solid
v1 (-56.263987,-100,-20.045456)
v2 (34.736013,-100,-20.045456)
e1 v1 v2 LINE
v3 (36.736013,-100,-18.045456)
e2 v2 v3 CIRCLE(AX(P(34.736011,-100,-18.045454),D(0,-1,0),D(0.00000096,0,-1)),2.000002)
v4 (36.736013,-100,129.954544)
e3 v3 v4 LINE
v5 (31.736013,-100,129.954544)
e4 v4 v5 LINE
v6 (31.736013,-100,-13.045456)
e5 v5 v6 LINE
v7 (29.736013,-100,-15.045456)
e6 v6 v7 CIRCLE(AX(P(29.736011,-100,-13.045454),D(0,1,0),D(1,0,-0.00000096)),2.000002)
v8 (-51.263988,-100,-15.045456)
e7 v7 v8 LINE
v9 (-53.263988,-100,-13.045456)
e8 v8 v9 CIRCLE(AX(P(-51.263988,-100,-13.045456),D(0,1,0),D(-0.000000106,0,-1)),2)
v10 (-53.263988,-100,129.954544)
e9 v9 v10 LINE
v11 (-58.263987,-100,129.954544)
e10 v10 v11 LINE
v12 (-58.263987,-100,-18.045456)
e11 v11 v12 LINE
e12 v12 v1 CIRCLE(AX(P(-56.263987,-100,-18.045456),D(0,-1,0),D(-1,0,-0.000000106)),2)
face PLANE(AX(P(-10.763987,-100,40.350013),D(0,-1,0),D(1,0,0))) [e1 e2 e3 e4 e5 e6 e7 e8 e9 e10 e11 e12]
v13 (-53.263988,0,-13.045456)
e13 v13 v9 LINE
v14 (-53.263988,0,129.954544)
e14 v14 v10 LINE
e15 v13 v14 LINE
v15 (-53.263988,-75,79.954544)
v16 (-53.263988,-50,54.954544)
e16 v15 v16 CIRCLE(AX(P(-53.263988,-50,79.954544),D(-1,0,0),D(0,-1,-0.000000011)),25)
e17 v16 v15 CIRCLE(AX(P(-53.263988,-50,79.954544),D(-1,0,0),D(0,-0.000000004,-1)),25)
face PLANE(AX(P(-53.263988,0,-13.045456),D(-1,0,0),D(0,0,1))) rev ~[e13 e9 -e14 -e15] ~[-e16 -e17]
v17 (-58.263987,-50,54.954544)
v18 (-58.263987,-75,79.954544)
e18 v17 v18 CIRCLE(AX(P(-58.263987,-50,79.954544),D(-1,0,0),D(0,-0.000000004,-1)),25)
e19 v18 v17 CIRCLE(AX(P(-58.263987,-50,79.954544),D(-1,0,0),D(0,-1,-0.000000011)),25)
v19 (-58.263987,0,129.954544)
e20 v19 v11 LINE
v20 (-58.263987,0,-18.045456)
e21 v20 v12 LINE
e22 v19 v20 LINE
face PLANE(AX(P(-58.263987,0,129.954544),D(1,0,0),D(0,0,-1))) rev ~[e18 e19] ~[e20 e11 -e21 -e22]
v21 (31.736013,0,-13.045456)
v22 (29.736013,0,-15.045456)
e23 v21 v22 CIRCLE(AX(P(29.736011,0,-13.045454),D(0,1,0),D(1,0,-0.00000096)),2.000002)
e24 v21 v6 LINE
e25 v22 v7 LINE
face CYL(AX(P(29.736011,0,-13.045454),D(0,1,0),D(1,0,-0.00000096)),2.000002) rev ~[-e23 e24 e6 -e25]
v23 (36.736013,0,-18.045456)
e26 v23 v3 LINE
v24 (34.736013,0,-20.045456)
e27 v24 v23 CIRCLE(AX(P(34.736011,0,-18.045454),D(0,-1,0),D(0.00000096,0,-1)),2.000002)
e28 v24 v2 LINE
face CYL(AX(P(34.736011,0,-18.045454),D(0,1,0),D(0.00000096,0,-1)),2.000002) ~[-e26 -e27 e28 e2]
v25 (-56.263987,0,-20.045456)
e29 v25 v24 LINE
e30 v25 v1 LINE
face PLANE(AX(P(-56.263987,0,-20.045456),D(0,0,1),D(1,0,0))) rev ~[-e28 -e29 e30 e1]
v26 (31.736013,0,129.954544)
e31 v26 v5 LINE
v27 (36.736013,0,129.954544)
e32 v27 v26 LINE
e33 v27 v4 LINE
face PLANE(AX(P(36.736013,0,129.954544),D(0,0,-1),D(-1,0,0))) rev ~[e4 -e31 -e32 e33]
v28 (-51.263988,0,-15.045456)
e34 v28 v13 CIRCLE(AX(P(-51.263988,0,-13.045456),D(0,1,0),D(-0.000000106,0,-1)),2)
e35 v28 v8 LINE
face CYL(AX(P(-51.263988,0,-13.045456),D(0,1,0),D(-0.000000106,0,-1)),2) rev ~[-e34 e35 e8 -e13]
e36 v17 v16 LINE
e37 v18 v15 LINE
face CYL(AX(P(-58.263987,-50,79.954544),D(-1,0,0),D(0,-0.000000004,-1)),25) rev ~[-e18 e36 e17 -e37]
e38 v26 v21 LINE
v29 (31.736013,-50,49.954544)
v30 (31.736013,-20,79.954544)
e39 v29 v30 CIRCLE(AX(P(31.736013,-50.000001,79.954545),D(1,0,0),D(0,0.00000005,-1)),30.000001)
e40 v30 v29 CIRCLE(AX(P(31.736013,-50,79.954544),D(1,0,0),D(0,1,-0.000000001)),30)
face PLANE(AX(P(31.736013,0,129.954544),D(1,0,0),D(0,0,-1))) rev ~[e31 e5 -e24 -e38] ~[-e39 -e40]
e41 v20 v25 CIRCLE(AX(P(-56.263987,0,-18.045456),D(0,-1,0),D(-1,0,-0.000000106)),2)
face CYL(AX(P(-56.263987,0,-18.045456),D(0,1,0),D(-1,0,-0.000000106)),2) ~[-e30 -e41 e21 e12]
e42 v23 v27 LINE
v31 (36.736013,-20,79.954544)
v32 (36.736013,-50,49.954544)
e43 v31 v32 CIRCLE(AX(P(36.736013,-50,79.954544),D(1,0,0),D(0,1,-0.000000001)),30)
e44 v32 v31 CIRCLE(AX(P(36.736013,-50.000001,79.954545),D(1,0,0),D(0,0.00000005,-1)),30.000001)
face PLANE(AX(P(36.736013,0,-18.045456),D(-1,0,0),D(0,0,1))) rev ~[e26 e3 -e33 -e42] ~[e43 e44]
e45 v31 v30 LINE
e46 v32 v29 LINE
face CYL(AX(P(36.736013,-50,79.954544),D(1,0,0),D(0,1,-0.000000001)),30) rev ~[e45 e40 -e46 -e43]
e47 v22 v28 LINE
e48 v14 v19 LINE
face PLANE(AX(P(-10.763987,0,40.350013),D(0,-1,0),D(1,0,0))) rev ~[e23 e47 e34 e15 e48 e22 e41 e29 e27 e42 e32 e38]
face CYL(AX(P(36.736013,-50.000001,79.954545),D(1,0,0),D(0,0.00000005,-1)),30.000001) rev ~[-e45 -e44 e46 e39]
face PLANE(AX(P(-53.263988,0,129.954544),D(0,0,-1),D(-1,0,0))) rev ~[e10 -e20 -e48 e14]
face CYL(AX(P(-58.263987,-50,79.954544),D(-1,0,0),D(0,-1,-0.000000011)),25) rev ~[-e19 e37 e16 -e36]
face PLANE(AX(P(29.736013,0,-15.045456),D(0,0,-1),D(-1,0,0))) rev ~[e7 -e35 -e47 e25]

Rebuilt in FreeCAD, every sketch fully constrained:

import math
import FreeCAD as App
import Part
import Sketcher

V = App.Vector

doc = App.newDocument("Part")
body = doc.addObject("PartDesign::Body", "Body")

sketch1 = body.newObject("Sketcher::SketchObject", "Sketch")
sketch1.AttachmentSupport = (doc.getObject("XZ_Plane"), [""])
sketch1.MapMode = "FlatFace"
sketch1.addGeometry([
    Part.LineSegment(V(-53.263988, 129.954544, 0), V(-58.263987, 129.954544, 0)),
    Part.LineSegment(V(-58.263987, 129.954544, 0), V(-58.263987, -18.045456, 0)),
    Part.ArcOfCircle(Part.Circle(V(-56.263987, -18.045456, 0), V(0, 0, 1), 2), math.radians(-179.999994), math.radians(-90.000006)),
    Part.LineSegment(V(-56.263987, -20.045456, 0), V(34.736013, -20.045456, 0)),
    Part.ArcOfCircle(Part.Circle(V(34.736011, -18.045454, 0), V(0, 0, 1), 2.000002), math.radians(-89.999945), math.radians(-0.000055)),
    Part.LineSegment(V(36.736013, -18.045456, 0), V(36.736013, 129.954544, 0)),
    Part.LineSegment(V(36.736013, 129.954544, 0), V(31.736013, 129.954544, 0)),
    Part.LineSegment(V(31.736013, 129.954544, 0), V(31.736013, -13.045456, 0)),
    Part.ArcOfCircle(Part.Circle(V(29.736011, -13.045454, 0), V(0, 0, 1), 2.000002), math.radians(-89.999945), math.radians(-0.000055)),
    Part.LineSegment(V(29.736013, -15.045456, 0), V(-51.263988, -15.045456, 0)),
    Part.ArcOfCircle(Part.Circle(V(-51.263988, -13.045456, 0), V(0, 0, 1), 2), math.radians(-179.999994), math.radians(-90.000006)),
    Part.LineSegment(V(-53.263988, -13.045456, 0), V(-53.263988, 129.954544, 0)),
], False)
sketch1.addConstraint([
    Sketcher.Constraint("Coincident", 0, 2, 1, 1),
    Sketcher.Constraint("Tangent", 1, 2, 2, 1),
    Sketcher.Constraint("Tangent", 2, 2, 3, 1),
    Sketcher.Constraint("Tangent", 3, 2, 4, 1),
    Sketcher.Constraint("Tangent", 4, 2, 5, 1),
    Sketcher.Constraint("Coincident", 5, 2, 6, 1),
    Sketcher.Constraint("Coincident", 6, 2, 7, 1),
    Sketcher.Constraint("Tangent", 7, 2, 8, 2),
    Sketcher.Constraint("Tangent", 8, 1, 9, 1),
    Sketcher.Constraint("Tangent", 9, 2, 10, 2),
    Sketcher.Constraint("Tangent", 10, 1, 11, 1),
    Sketcher.Constraint("Coincident", 11, 2, 0, 1),
    Sketcher.Constraint("Horizontal", 0),
    Sketcher.Constraint("Vertical", 1),
    Sketcher.Constraint("Horizontal", 3),
    Sketcher.Constraint("Vertical", 5),
    Sketcher.Constraint("Horizontal", 6),
    Sketcher.Constraint("Vertical", 7),
    Sketcher.Constraint("Horizontal", 9),
    Sketcher.Constraint("Vertical", 11),
    Sketcher.Constraint("Equal", 2, 4),
    Sketcher.Constraint("Equal", 4, 8),
    Sketcher.Constraint("Equal", 8, 10),
    Sketcher.Constraint("Horizontal", 0, 2, 5, 2),
    Sketcher.Constraint("Equal", 0, 6),
    Sketcher.Constraint("Radius", 2, 2.0),
    Sketcher.Constraint("DistanceX", 0, 2, 0, 1, 4.999999),
    Sketcher.Constraint("DistanceX", 3, 1, 3, 2, 91.0),
    Sketcher.Constraint("DistanceY", 1, 2, 1, 1, 148.0),
    Sketcher.Constraint("DistanceY", 7, 2, 7, 1, 143.0),
    Sketcher.Constraint("DistanceX", -1, 1, 4, 3, 34.736011),
    Sketcher.Constraint("DistanceY", 2, 3, -1, 1, 18.045456),
])
pad1 = body.newObject("PartDesign::Pad", "Pad")
pad1.Profile = sketch1
pad1.Length = 100

sketch2 = body.newObject("Sketcher::SketchObject", "Sketch001")
sketch2.AttachmentSupport = (doc.getObject("YZ_Plane"), [""])
sketch2.MapMode = "FlatFace"
sketch2.AttachmentOffset = App.Placement(V(0, 0, 36.736013), App.Rotation())
sketch2.addGeometry([
    Part.ArcOfCircle(Part.Circle(V(-50, 79.954544, 0), V(0, 0, 1), 30), math.radians(0), math.radians(270)),
    Part.ArcOfCircle(Part.Circle(V(-50.000001, 79.954545, 0), V(0, 0, 1), 30.000001), math.radians(-89.999997), math.radians(-0.000003)),
], False)
sketch2.addConstraint([
    Sketcher.Constraint("Tangent", 0, 1, 1, 2),
    Sketcher.Constraint("Coincident", 1, 1, 0, 2),
    Sketcher.Constraint("Horizontal", 1, 3, 0, 1),
    Sketcher.Constraint("Vertical", 0, 3, 1, 1),
    Sketcher.Constraint("Radius", 0, 30.0),
    Sketcher.Constraint("DistanceX", 0, 3, -1, 1, 50.0),
    Sketcher.Constraint("DistanceY", -1, 1, 0, 3, 79.954544),
])
pocket1 = body.newObject("PartDesign::Pocket", "Pocket")
pocket1.Profile = sketch2
pocket1.Length = 5

sketch3 = body.newObject("Sketcher::SketchObject", "Sketch002")
sketch3.AttachmentSupport = (doc.getObject("YZ_Plane"), [""])
sketch3.MapMode = "FlatFace"
sketch3.AttachmentOffset = App.Placement(V(0, 0, -58.263987), App.Rotation())
sketch3.addGeometry([
    Part.ArcOfCircle(Part.Circle(V(-50, 79.954544, 0), V(0, 0, 1), 25), math.radians(-90.000001), math.radians(180.000001)),
    Part.ArcOfCircle(Part.Circle(V(-50, 79.954544, 0), V(0, 0, 1), 25), math.radians(-180), math.radians(-90)),
], False)
sketch3.addConstraint([
    Sketcher.Constraint("Tangent", 0, 1, 1, 2),
    Sketcher.Constraint("Coincident", 1, 1, 0, 2),
    Sketcher.Constraint("Horizontal", 0, 3, 1, 1),
    Sketcher.Constraint("Vertical", 1, 3, 0, 1),
    Sketcher.Constraint("Radius", 0, 25.0),
    Sketcher.Constraint("DistanceX", 0, 3, -1, 1, 50.0),
    Sketcher.Constraint("DistanceY", -1, 1, 0, 3, 79.954544),
])
pocket2 = body.newObject("PartDesign::Pocket", "Pocket001")
pocket2.Profile = sketch3
pocket2.Length = 5
pocket2.Reversed = True

doc.recompute()
